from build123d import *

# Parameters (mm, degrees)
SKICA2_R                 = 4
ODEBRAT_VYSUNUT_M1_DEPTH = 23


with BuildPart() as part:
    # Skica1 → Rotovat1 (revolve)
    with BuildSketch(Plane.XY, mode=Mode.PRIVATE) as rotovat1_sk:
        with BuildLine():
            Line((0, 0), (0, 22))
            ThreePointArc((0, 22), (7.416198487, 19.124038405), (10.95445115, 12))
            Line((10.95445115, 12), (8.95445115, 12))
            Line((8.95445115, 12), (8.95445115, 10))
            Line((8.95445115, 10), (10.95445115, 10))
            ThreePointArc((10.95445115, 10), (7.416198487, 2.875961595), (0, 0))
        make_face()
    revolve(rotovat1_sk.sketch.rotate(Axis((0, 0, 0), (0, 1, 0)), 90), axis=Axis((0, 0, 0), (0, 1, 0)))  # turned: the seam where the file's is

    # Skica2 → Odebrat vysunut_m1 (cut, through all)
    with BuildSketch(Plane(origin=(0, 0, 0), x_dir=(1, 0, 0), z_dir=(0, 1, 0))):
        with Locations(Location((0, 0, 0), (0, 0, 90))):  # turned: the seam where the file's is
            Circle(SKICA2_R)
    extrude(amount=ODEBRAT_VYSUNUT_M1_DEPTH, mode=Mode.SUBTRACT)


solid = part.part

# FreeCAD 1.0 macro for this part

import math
import FreeCAD as App
import Part
import Sketcher
from FreeCAD import Vector
Q = App.Units.Quantity

doc = App.newDocument("Part")
body = doc.addObject("PartDesign::Body", "Body")

# Sketch on XY plane
sketch1 = doc.addObject("Sketcher::SketchObject", "Sketch")
body.addObject(sketch1)
sketch1.AttachmentSupport = (doc.XY_Plane, [""])
sketch1.MapMode = "FlatFace"
sketch1.addGeometry([
    Part.LineSegment(Vector(0, 22, 0), Vector(0, 0, 0)),  # 0
    Part.ArcOfCircle(Part.Circle(Vector(0, 11, 0), Vector(0, 0, 1), 11), math.radians(-90), math.radians(-5)),  # 1
    Part.LineSegment(Vector(11, 10, 0), Vector(9, 10, 0)),  # 2
    Part.LineSegment(Vector(9, 10, 0), Vector(9, 12, 0)),  # 3
    Part.LineSegment(Vector(9, 12, 0), Vector(11, 12, 0)),  # 4
    Part.ArcOfCircle(Part.Circle(Vector(0, 11, 0), Vector(0, 0, 1), 11), math.radians(5), math.radians(90)),  # 5
], False)
sketch1.addConstraint([
    Sketcher.Constraint("Coincident", 0, 2, 1, 1),
    Sketcher.Constraint("Coincident", 1, 2, 2, 1),
    Sketcher.Constraint("Coincident", 2, 2, 3, 1),
    Sketcher.Constraint("Coincident", 3, 2, 4, 1),
    Sketcher.Constraint("Coincident", 4, 2, 5, 1),
    Sketcher.Constraint("Coincident", 5, 2, 0, 1),
    Sketcher.Constraint("Vertical", 0),
    Sketcher.Constraint("Horizontal", 2),
    Sketcher.Constraint("Vertical", 3),
    Sketcher.Constraint("Horizontal", 4),
    Sketcher.Constraint("Coincident", 0, 2, -1, 1),
    Sketcher.Constraint("Coincident", 5, 3, 1, 3),
    Sketcher.Constraint("Equal", 1, 5),
    Sketcher.Constraint("PointOnObject", 1, 3, -2),
    Sketcher.Constraint("Vertical", 1, 2, 4, 2),
    Sketcher.Constraint("Equal", 4, 3),
    Sketcher.Constraint("Radius", 1, Q("11 mm")),
    Sketcher.Constraint("DistanceX", 2, 2, 2, 1, Q("2 mm")),
])
revolution = doc.addObject("PartDesign::Revolution", "Revolution")
body.addObject(revolution)
revolution.Profile = sketch1
revolution.ReferenceAxis = (sketch1, ["V_Axis"])
revolution.Angle = 360

# Sketch on XZ plane
sketch2 = doc.addObject("Sketcher::SketchObject", "Sketch001")
body.addObject(sketch2)
sketch2.AttachmentSupport = (doc.XZ_Plane, [""])
sketch2.MapMode = "FlatFace"
sketch2.addGeometry(Part.Circle(Vector(0, 0, 0), Vector(0, 0, 1), 4), False)
sketch2.addConstraint([
    Sketcher.Constraint("Coincident", 0, 3, -1, 1),
    Sketcher.Constraint("Diameter", 0, Q("8 mm")),
])
pocket1 = doc.addObject("PartDesign::Pocket", "Pocket")
body.addObject(pocket1)
pocket1.Profile = sketch2
pocket1.Type = "ThroughAll"

doc.recompute()
